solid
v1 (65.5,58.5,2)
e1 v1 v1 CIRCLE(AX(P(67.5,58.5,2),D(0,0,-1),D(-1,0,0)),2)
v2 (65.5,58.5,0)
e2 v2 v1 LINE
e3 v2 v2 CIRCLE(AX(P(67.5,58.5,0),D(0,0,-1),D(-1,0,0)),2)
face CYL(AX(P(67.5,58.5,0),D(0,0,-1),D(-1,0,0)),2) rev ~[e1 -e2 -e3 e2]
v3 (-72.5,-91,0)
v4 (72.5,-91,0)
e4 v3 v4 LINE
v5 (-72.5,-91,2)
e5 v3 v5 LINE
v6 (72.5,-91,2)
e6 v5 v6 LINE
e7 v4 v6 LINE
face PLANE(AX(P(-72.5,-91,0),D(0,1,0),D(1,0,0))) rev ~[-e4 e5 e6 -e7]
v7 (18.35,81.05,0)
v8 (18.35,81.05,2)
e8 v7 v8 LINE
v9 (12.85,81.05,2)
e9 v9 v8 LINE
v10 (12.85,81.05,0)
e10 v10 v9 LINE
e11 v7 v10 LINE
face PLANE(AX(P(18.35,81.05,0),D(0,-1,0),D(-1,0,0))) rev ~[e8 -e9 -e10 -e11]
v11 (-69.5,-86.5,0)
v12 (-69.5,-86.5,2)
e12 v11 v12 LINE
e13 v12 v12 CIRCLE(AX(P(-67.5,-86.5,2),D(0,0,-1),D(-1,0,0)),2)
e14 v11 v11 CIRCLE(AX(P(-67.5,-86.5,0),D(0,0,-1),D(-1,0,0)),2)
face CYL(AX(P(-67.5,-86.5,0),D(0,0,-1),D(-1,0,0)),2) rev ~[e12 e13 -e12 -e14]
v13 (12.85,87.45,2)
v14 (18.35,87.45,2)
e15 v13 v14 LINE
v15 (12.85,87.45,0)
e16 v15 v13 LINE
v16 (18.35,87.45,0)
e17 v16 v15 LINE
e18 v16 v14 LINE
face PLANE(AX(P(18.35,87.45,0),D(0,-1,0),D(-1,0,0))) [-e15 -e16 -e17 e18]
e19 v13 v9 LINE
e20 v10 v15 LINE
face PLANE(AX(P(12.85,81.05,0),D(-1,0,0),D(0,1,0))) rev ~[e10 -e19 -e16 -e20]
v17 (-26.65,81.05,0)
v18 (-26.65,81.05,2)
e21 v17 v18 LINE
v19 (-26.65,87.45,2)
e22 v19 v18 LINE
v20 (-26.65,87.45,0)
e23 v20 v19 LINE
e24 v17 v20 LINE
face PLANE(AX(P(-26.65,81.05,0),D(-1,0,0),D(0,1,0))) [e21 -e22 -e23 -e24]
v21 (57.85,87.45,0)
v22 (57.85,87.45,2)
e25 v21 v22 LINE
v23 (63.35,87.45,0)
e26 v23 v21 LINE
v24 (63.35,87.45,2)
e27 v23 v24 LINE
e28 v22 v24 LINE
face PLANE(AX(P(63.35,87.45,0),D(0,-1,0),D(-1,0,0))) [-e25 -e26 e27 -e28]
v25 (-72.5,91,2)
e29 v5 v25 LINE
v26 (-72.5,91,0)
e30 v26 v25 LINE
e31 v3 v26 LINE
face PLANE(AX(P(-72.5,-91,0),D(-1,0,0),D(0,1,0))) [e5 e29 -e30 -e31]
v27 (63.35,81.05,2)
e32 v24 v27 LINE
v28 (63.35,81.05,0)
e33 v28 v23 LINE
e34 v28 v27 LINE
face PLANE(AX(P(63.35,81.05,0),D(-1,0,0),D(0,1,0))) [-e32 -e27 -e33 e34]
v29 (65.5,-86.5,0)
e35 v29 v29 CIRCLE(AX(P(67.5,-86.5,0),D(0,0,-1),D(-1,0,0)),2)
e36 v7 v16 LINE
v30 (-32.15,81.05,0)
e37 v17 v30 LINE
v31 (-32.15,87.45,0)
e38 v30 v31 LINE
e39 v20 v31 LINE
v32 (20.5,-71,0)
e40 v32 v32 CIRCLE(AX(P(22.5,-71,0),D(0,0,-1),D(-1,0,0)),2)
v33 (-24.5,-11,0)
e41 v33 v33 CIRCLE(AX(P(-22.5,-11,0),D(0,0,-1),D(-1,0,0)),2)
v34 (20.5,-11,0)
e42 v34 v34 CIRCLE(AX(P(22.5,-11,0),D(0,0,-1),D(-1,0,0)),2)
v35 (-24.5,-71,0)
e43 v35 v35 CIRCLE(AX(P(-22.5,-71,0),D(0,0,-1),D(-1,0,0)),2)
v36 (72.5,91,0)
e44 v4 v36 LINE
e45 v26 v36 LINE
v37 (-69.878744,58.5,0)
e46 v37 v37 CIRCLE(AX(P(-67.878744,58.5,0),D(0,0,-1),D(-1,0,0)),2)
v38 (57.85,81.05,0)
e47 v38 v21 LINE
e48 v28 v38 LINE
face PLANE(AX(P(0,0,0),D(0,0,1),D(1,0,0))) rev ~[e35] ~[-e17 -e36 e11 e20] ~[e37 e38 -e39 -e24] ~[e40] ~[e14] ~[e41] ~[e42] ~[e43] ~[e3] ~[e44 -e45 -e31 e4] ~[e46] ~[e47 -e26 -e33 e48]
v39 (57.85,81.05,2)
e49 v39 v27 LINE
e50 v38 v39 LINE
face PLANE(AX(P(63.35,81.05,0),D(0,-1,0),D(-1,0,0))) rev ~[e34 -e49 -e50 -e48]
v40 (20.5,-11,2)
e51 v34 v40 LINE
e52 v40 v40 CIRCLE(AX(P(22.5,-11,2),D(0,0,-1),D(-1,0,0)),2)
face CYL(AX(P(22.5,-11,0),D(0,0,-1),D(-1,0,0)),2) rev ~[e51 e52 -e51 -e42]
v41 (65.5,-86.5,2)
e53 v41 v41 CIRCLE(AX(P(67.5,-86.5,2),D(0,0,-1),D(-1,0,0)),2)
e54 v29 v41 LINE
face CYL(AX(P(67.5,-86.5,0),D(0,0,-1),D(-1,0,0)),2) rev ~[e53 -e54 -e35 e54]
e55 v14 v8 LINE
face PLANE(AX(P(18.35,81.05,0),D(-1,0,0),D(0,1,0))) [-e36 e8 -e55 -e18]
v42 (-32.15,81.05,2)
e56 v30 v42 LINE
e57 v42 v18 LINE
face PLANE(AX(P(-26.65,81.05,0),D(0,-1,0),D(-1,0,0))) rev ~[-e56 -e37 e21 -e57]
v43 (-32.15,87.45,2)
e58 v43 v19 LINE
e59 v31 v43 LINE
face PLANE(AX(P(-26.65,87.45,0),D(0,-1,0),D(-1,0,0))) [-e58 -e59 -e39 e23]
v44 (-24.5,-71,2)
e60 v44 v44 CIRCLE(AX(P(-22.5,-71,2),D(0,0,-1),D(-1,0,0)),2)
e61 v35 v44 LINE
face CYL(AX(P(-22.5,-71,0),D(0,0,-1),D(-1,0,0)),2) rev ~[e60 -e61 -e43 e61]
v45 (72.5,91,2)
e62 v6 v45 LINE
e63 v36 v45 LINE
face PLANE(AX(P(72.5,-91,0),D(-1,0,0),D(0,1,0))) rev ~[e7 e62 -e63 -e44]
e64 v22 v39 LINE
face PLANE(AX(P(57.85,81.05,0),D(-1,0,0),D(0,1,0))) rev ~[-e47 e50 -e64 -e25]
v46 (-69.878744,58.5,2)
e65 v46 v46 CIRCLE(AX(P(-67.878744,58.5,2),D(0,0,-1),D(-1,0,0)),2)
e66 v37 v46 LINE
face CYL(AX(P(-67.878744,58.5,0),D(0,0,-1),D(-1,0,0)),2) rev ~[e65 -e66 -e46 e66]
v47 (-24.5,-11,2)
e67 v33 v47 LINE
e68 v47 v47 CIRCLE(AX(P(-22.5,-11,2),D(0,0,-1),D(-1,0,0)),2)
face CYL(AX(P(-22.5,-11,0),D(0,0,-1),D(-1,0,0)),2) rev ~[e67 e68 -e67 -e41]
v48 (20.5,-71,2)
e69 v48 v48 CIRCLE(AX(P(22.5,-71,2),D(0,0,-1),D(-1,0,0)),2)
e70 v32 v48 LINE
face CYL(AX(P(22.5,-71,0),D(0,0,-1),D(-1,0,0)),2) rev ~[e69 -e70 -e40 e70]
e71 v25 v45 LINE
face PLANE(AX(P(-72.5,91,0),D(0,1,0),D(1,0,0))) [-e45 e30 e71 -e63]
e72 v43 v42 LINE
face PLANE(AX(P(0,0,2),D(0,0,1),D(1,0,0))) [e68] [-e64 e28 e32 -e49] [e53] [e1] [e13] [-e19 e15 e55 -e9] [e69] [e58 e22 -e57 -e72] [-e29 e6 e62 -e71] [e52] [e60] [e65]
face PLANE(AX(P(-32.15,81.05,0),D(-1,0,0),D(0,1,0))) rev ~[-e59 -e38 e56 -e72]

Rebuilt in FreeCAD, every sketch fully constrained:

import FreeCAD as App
import Part
import Sketcher

V = App.Vector


def add_polygon(sketch, points):
    """Adds a closed chain of lines whose ends are joined by coincident constraints."""
    first, n = sketch.GeometryCount, len(points)
    for a, b in zip(points, points[1:] + points[:1]):
        sketch.addGeometry(Part.LineSegment(App.Vector(*a, 0), App.Vector(*b, 0)), False)
    for i in range(n):
        sketch.addConstraint(Sketcher.Constraint("Coincident", first + i, 2, first + (i + 1) % n, 1))

doc = App.newDocument("Part")
body = doc.addObject("PartDesign::Body", "Body")

# Sketch on XY plane
sketch1 = body.newObject("Sketcher::SketchObject", "Sketch")
sketch1.AttachmentSupport = (doc.getObject("XY_Plane"), [""])
sketch1.MapMode = "FlatFace"
add_polygon(sketch1, [(-72, 91), (-72, -91), (72, -91), (72, 91)])  # lines 0-3
sketch1.addConstraint(Sketcher.Constraint("Vertical", 0))
sketch1.addConstraint(Sketcher.Constraint("Horizontal", 1))
sketch1.addConstraint(Sketcher.Constraint("Vertical", 2))
sketch1.addConstraint(Sketcher.Constraint("Horizontal", 3))
sketch1.addConstraint(Sketcher.Constraint("Symmetric", 0, 2, 2, 2, -1, 1))
sketch1.addConstraint(Sketcher.Constraint("DistanceX", 1, 1, 1, 2, 145.0))
sketch1.addConstraint(Sketcher.Constraint("DistanceY", 0, 2, 0, 1, 182.0))
pad1 = body.newObject("PartDesign::Pad", "Pad")
pad1.Profile = sketch1
pad1.Length = 2

# Sketch on XY plane
sketch2 = body.newObject("Sketcher::SketchObject", "Sketch001")
sketch2.AttachmentSupport = (doc.getObject("XY_Plane"), [""])
sketch2.MapMode = "FlatFace"
sketch2.addGeometry(Part.Circle(V(22.5, -11, 0), V(0, 0, 1), 2), False)
sketch2.addGeometry(Part.Circle(V(22.5, -71, 0), V(0, 0, 1), 2), False)
sketch2.addGeometry(Part.Circle(V(-22.5, -71, 0), V(0, 0, 1), 2), False)
sketch2.addGeometry(Part.Circle(V(-22.5, -11, 0), V(0, 0, 1), 2), False)
sketch2.addConstraint(Sketcher.Constraint("Equal", 0, 1))
sketch2.addConstraint(Sketcher.Constraint("Equal", 1, 2))
sketch2.addConstraint(Sketcher.Constraint("Equal", 2, 3))
sketch2.addConstraint(Sketcher.Constraint("Symmetric", 1, 3, 2, 3, -2))
sketch2.addConstraint(Sketcher.Constraint("Symmetric", 0, 3, 3, 3, -2))
sketch2.addConstraint(Sketcher.Constraint("Vertical", 0, 3, 1, 3))
sketch2.addConstraint(Sketcher.Constraint("Diameter", 0, 4.0))
sketch2.addConstraint(Sketcher.Constraint("DistanceY", 0, 3, -1, 1, 11.0))
sketch2.addConstraint(Sketcher.Constraint("DistanceY", 1, 3, -1, 1, 71.0))
sketch2.addConstraint(Sketcher.Constraint("DistanceX", 2, 3, 1, 3, 45.0))
pocket1 = body.newObject("PartDesign::Pocket", "Pocket")
pocket1.Profile = sketch2
pocket1.Length = 32
pocket1.Reversed = True

# Sketch on XY plane
sketch3 = body.newObject("Sketcher::SketchObject", "Sketch002")
sketch3.AttachmentSupport = (doc.getObject("XY_Plane"), [""])
sketch3.MapMode = "FlatFace"
add_polygon(sketch3, [(18, 87), (18, 81), (13, 81), (13, 87)])  # lines 0-3
add_polygon(sketch3, [(-27, 87), (-27, 81), (-32, 81), (-32, 87)])  # lines 4-7
add_polygon(sketch3, [(63, 87), (63, 81), (58, 81), (58, 87)])  # lines 8-11
sketch3.addConstraint(Sketcher.Constraint("Vertical", 0))
sketch3.addConstraint(Sketcher.Constraint("Horizontal", 1))
sketch3.addConstraint(Sketcher.Constraint("Vertical", 2))
sketch3.addConstraint(Sketcher.Constraint("Horizontal", 3))
sketch3.addConstraint(Sketcher.Constraint("Vertical", 4))
sketch3.addConstraint(Sketcher.Constraint("Horizontal", 5))
sketch3.addConstraint(Sketcher.Constraint("Vertical", 6))
sketch3.addConstraint(Sketcher.Constraint("Horizontal", 7))
sketch3.addConstraint(Sketcher.Constraint("Vertical", 8))
sketch3.addConstraint(Sketcher.Constraint("Horizontal", 9))
sketch3.addConstraint(Sketcher.Constraint("Vertical", 10))
sketch3.addConstraint(Sketcher.Constraint("Horizontal", 11))
sketch3.addConstraint(Sketcher.Constraint("Horizontal", 1, 2, 4, 2))
sketch3.addConstraint(Sketcher.Constraint("Horizontal", 3, 2, 6, 2))
sketch3.addConstraint(Sketcher.Constraint("Horizontal", 5, 2, 8, 2))
sketch3.addConstraint(Sketcher.Constraint("Horizontal", 7, 2, 10, 2))
sketch3.addConstraint(Sketcher.Constraint("Equal", 3, 5))
sketch3.addConstraint(Sketcher.Constraint("Equal", 7, 9))
sketch3.addConstraint(Sketcher.Constraint("DistanceX", 1, 2, 1, 1, 5.5))
sketch3.addConstraint(Sketcher.Constraint("DistanceY", 0, 2, 0, 1, 6.4))
sketch3.addConstraint(Sketcher.Constraint("DistanceX", 4, 2, 0, 2, 45.0))
sketch3.addConstraint(Sketcher.Constraint("DistanceX", 0, 2, 8, 2, 45.0))
sketch3.addConstraint(Sketcher.Constraint("DistanceX", -1, 1, 0, 2, 18.35))
sketch3.addConstraint(Sketcher.Constraint("DistanceY", -1, 1, 0, 2, 81.05))
pocket2 = body.newObject("PartDesign::Pocket", "Pocket001")
pocket2.Profile = sketch3
pocket2.Length = 32
pocket2.Reversed = True

# Sketch on XY plane
sketch4 = body.newObject("Sketcher::SketchObject", "Sketch003")
sketch4.AttachmentSupport = (doc.getObject("XY_Plane"), [""])
sketch4.MapMode = "FlatFace"
sketch4.addGeometry(Part.Circle(V(-67.5, -86.5, 0), V(0, 0, 1), 2), False)
sketch4.addGeometry(Part.Circle(V(67.5, -86.5, 0), V(0, 0, 1), 2), False)
sketch4.addGeometry(Part.Circle(V(67.5, 58.5, 0), V(0, 0, 1), 2), False)
sketch4.addGeometry(Part.Circle(V(-67.9, 58.5, 0), V(0, 0, 1), 2), False)
sketch4.addConstraint(Sketcher.Constraint("Equal", 0, 1))
sketch4.addConstraint(Sketcher.Constraint("Equal", 1, 2))
sketch4.addConstraint(Sketcher.Constraint("Equal", 2, 3))
sketch4.addConstraint(Sketcher.Constraint("Symmetric", 0, 3, 1, 3, -2))
sketch4.addConstraint(Sketcher.Constraint("Horizontal", 2, 3, 3, 3))
sketch4.addConstraint(Sketcher.Constraint("Vertical", 1, 3, 2, 3))
sketch4.addConstraint(Sketcher.Constraint("Diameter", 0, 4.0))
sketch4.addConstraint(Sketcher.Constraint("DistanceX", 0, 3, 1, 3, 135.0))
sketch4.addConstraint(Sketcher.Constraint("DistanceY", 1, 3, 2, 3, 145.0))
sketch4.addConstraint(Sketcher.Constraint("DistanceY", 0, 3, -1, 1, 86.5))
sketch4.addConstraint(Sketcher.Constraint("DistanceX", 3, 3, -1, 1, 67.878744))
pocket3 = body.newObject("PartDesign::Pocket", "Pocket002")
pocket3.Profile = sketch4
pocket3.Length = 12
pocket3.Reversed = True

doc.recompute()
